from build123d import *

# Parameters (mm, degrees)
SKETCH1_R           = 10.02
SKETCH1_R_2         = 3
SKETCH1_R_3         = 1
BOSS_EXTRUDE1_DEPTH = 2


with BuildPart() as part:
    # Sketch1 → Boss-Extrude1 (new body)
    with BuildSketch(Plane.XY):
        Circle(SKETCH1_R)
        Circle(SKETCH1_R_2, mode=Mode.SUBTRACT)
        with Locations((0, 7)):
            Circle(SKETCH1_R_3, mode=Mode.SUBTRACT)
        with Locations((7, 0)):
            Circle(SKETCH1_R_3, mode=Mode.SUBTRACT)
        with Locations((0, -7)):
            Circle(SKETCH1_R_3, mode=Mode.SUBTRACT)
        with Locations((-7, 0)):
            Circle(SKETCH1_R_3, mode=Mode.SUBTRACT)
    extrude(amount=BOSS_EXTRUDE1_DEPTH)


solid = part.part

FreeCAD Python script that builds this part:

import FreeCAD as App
import Part
import Sketcher
Q = App.Units.Quantity

doc = App.newDocument("Part")
body = doc.addObject("PartDesign::Body", "Body")

# Sketch on XY plane
sketch1 = doc.addObject("Sketcher::SketchObject", "Sketch")
body.addObject(sketch1)
sketch1.AttachmentSupport = (doc.XY_Plane, [""])
sketch1.MapMode = "FlatFace"
sketch1.addGeometry([
    Part.Circle(App.Vector(0, 0, 0), App.Vector(0, 0, 1), 10.02),  # 0
    Part.Circle(App.Vector(0, -7, 0), App.Vector(0, 0, 1), 1),  # 1
    Part.Circle(App.Vector(-7, 0, 0), App.Vector(0, 0, 1), 1),  # 2
    Part.Circle(App.Vector(0, 0, 0), App.Vector(0, 0, 1), 3),  # 3
    Part.Circle(App.Vector(7, 0, 0), App.Vector(0, 0, 1), 1),  # 4
    Part.Circle(App.Vector(0, 7, 0), App.Vector(0, 0, 1), 1),  # 5
], False)
sketch1.addConstraint([
    Sketcher.Constraint("Coincident", 0, 3, -1, 1),
    Sketcher.Constraint("Coincident", 3, 3, -1, 1),
    Sketcher.Constraint("Equal", 1, 2),
    Sketcher.Constraint("Equal", 2, 4),
    Sketcher.Constraint("Equal", 4, 5),
    Sketcher.Constraint("Symmetric", 2, 3, 4, 3, -1, 1),
    Sketcher.Constraint("Symmetric", 1, 3, 5, 3, -1, 1),
    Sketcher.Constraint("PointOnObject", 1, 3, -2),
    Sketcher.Constraint("PointOnObject", 2, 3, -1),
    Sketcher.Constraint("Diameter", 1, Q("2 mm")),
    Sketcher.Constraint("Diameter", 3, Q("6 mm")),
    Sketcher.Constraint("Diameter", 0, Q("20.04 mm")),
    Sketcher.Constraint("DistanceY", 1, 3, -1, 1, Q("7 mm")),
    Sketcher.Constraint("DistanceX", 2, 3, -1, 1, Q("7 mm")),
])
pad1 = doc.addObject("PartDesign::Pad", "Pad")
body.addObject(pad1)
pad1.Profile = sketch1
pad1.Length = 2

doc.recompute()
